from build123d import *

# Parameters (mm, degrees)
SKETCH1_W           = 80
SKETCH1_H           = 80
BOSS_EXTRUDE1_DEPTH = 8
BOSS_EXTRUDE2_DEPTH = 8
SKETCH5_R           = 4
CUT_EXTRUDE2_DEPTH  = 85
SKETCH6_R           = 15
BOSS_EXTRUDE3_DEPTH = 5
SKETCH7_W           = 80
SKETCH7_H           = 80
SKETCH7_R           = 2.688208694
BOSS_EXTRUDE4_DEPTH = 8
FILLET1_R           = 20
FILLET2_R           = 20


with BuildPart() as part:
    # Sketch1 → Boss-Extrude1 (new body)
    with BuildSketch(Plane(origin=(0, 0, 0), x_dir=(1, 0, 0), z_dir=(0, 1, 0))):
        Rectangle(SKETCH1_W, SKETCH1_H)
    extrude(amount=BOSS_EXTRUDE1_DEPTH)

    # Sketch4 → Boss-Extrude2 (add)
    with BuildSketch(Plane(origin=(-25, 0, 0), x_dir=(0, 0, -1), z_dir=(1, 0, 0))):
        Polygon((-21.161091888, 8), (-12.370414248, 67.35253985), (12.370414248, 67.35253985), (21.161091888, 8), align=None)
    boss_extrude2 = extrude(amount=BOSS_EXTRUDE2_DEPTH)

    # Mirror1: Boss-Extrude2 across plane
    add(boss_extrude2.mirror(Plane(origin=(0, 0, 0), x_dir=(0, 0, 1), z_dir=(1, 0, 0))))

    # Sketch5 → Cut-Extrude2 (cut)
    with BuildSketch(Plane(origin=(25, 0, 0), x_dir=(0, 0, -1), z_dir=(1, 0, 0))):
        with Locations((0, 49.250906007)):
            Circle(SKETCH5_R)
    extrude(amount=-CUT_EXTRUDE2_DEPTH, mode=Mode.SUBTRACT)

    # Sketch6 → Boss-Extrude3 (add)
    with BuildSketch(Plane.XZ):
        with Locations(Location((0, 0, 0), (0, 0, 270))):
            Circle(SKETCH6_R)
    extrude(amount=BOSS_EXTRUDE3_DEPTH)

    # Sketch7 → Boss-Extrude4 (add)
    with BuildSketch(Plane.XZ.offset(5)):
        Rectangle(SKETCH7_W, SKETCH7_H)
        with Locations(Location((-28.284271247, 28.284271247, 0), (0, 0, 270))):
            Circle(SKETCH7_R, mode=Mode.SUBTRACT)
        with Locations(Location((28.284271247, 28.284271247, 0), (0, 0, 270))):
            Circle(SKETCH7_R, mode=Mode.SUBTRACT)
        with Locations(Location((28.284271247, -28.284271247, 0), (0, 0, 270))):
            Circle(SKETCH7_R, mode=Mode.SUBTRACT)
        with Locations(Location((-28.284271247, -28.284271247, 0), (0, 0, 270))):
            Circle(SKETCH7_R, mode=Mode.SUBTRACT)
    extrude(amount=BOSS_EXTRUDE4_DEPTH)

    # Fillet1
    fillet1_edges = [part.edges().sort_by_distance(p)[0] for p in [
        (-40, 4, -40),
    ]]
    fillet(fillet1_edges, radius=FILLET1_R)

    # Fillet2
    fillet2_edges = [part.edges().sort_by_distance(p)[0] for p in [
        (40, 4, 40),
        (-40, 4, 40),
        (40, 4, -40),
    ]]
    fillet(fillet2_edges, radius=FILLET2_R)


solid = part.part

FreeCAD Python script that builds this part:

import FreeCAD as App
import Part
import Sketcher
from FreeCAD import Vector


def edges_at(feature, points):
    """Names of the edges that pass closest to the given points."""
    edges = feature.Shape.Edges
    near = lambda p: min(range(len(edges)), key=lambda i: edges[i].distToShape(Part.Vertex(*p))[0])
    return sorted({f"Edge{near(p) + 1}" for p in points})


def add_polygon(sketch, points):
    """Adds a closed chain of lines whose ends are joined by coincident constraints."""
    first, n = sketch.GeometryCount, len(points)
    for a, b in zip(points, points[1:] + points[:1]):
        sketch.addGeometry(Part.LineSegment(App.Vector(*a, 0), App.Vector(*b, 0)), False)
    for i in range(n):
        sketch.addConstraint(Sketcher.Constraint("Coincident", first + i, 2, first + (i + 1) % n, 1))

doc = App.newDocument("Part")
body = doc.addObject("PartDesign::Body", "Body")

# Sketch on XZ plane
sketch1 = body.newObject("Sketcher::SketchObject", "Sketch")
sketch1.AttachmentSupport = (doc.getObject("XZ_Plane"), [""])
sketch1.MapMode = "FlatFace"
add_polygon(sketch1, [(-40, -40), (-40, 40), (40, 40), (40, -40)])  # lines 0-3
sketch1.addConstraint([
    Sketcher.Constraint("Vertical", 0),
    Sketcher.Constraint("Horizontal", 1),
    Sketcher.Constraint("Vertical", 2),
    Sketcher.Constraint("Horizontal", 3),
    Sketcher.Constraint("Symmetric", 0, 2, 2, 2, -1, 1),
    Sketcher.Constraint("Equal", 3, 0),
    Sketcher.Constraint("DistanceX", 1, 1, 1, 2, 80.0),
])
pad1 = body.newObject("PartDesign::Pad", "Pad")
pad1.Profile = sketch1
pad1.Length = 8
pad1.Reversed = True

# Sketch on YZ plane
sketch2 = body.newObject("Sketcher::SketchObject", "Sketch001")
sketch2.AttachmentSupport = (doc.getObject("YZ_Plane"), [""])
sketch2.MapMode = "FlatFace"
sketch2.AttachmentOffset = App.Placement(Vector(0, 0, -25), App.Rotation())
add_polygon(sketch2, [(67, 12), (8, 21), (8, -21), (67, -12)])  # lines 0-3
sketch2.addConstraint([
    Sketcher.Constraint("Vertical", 1),
    Sketcher.Constraint("Vertical", 3),
    Sketcher.Constraint("Equal", 0, 2),
    Sketcher.Constraint("Distance", 0, 60.0),
    Sketcher.Constraint("DistanceX", -1, 1, 0, 2, 8.0),
    Sketcher.Constraint("DistanceY", 3, 1, 3, 2, 24.740828),
    Sketcher.Constraint("DistanceY", 1, 2, 1, 1, 42.322184),
    Sketcher.Constraint("DistanceY", -1, 1, 0, 2, 21.161092),
])
pad2 = body.newObject("PartDesign::Pad", "Pad001")
pad2.Profile = sketch2
pad2.Length = 8
doc.recompute()

mirrored = body.newObject("PartDesign::Mirrored", "Mirrored")
mirrored.Originals = [pad2]
mirrored.MirrorPlane = (doc.getObject("YZ_Plane"), [""])
body.Tip = mirrored

# Sketch on YZ plane
sketch3 = body.newObject("Sketcher::SketchObject", "Sketch002")
sketch3.AttachmentSupport = (doc.getObject("YZ_Plane"), [""])
sketch3.MapMode = "FlatFace"
sketch3.AttachmentOffset = App.Placement(Vector(0, 0, 25), App.Rotation())
sketch3.addGeometry(Part.Circle(Vector(49.3, 0, 0), Vector(0, 0, 1), 4), False)
sketch3.addConstraint([
    Sketcher.Constraint("PointOnObject", 0, 3, -1),
    Sketcher.Constraint("Diameter", 0, 8.0),
    Sketcher.Constraint("DistanceX", -1, 1, 0, 3, 49.250906),
])
pocket1 = body.newObject("PartDesign::Pocket", "Pocket")
pocket1.Profile = sketch3
pocket1.Length = 85

# Sketch on XZ plane
sketch4 = body.newObject("Sketcher::SketchObject", "Sketch003")
sketch4.AttachmentSupport = (doc.getObject("XZ_Plane"), [""])
sketch4.MapMode = "FlatFace"
sketch4.addGeometry(Part.Circle(Vector(0, 0, 0), Vector(0, 0, 1), 15), False)
sketch4.addConstraint([
    Sketcher.Constraint("Coincident", 0, 3, -1, 1),
    Sketcher.Constraint("Diameter", 0, 30.0),
])
pad3 = body.newObject("PartDesign::Pad", "Pad002")
pad3.Profile = sketch4
pad3.Length = 5

# Sketch on XZ plane
sketch5 = body.newObject("Sketcher::SketchObject", "Sketch004")
sketch5.AttachmentSupport = (doc.getObject("XZ_Plane"), [""])
sketch5.MapMode = "FlatFace"
sketch5.AttachmentOffset = App.Placement(Vector(0, 0, 5), App.Rotation())
add_polygon(sketch5, [(-40, 40), (-40, -40), (40, -40), (40, 40)])  # lines 0-3
sketch5.addGeometry(Part.Circle(Vector(-28.3, -28.3, 0), Vector(0, 0, 1), 2.7), False)  # 4
sketch5.addGeometry(Part.Circle(Vector(28.3, -28.3, 0), Vector(0, 0, 1), 2.7), False)  # 5
sketch5.addGeometry(Part.Circle(Vector(-28.3, 28.3, 0), Vector(0, 0, 1), 2.7), False)  # 6
sketch5.addGeometry(Part.Circle(Vector(28.3, 28.3, 0), Vector(0, 0, 1), 2.7), False)  # 7
sketch5.addConstraint([
    Sketcher.Constraint("Vertical", 0),
    Sketcher.Constraint("Horizontal", 1),
    Sketcher.Constraint("Vertical", 2),
    Sketcher.Constraint("Horizontal", 3),
    Sketcher.Constraint("Equal", 4, 5),
    Sketcher.Constraint("Equal", 5, 6),
    Sketcher.Constraint("Equal", 6, 7),
    Sketcher.Constraint("Symmetric", 5, 3, 6, 3, -1, 1),
    Sketcher.Constraint("Symmetric", 4, 3, 7, 3, -1, 1),
    Sketcher.Constraint("Symmetric", 0, 2, 2, 2, -1, 1),
    Sketcher.Constraint("Symmetric", 4, 3, 5, 3, -2),
    Sketcher.Constraint("Equal", 3, 0),
    Sketcher.Constraint("DistanceX", 1, 1, 1, 2, 80.0),
    Sketcher.Constraint("Diameter", 4, 5.376417),
    Sketcher.Constraint("DistanceX", 4, 3, -1, 1, 28.284271),
    Sketcher.Constraint("DistanceY", 4, 3, -1, 1, 28.284271),
])
pad4 = body.newObject("PartDesign::Pad", "Pad003")
pad4.Profile = sketch5
pad4.Length = 8
doc.recompute()

fillet = body.newObject("PartDesign::Fillet", "Fillet")
fillet.Base = (pad4, edges_at(pad4, [(-40, 4, -40)]))
fillet.Radius = 20
doc.recompute()

fillet2 = body.newObject("PartDesign::Fillet", "Fillet001")
fillet2.Base = (fillet, edges_at(fillet, [(40, 4, 40), (-40, 4, 40), (40, 4, -40)]))
fillet2.Radius = 20

doc.recompute()
